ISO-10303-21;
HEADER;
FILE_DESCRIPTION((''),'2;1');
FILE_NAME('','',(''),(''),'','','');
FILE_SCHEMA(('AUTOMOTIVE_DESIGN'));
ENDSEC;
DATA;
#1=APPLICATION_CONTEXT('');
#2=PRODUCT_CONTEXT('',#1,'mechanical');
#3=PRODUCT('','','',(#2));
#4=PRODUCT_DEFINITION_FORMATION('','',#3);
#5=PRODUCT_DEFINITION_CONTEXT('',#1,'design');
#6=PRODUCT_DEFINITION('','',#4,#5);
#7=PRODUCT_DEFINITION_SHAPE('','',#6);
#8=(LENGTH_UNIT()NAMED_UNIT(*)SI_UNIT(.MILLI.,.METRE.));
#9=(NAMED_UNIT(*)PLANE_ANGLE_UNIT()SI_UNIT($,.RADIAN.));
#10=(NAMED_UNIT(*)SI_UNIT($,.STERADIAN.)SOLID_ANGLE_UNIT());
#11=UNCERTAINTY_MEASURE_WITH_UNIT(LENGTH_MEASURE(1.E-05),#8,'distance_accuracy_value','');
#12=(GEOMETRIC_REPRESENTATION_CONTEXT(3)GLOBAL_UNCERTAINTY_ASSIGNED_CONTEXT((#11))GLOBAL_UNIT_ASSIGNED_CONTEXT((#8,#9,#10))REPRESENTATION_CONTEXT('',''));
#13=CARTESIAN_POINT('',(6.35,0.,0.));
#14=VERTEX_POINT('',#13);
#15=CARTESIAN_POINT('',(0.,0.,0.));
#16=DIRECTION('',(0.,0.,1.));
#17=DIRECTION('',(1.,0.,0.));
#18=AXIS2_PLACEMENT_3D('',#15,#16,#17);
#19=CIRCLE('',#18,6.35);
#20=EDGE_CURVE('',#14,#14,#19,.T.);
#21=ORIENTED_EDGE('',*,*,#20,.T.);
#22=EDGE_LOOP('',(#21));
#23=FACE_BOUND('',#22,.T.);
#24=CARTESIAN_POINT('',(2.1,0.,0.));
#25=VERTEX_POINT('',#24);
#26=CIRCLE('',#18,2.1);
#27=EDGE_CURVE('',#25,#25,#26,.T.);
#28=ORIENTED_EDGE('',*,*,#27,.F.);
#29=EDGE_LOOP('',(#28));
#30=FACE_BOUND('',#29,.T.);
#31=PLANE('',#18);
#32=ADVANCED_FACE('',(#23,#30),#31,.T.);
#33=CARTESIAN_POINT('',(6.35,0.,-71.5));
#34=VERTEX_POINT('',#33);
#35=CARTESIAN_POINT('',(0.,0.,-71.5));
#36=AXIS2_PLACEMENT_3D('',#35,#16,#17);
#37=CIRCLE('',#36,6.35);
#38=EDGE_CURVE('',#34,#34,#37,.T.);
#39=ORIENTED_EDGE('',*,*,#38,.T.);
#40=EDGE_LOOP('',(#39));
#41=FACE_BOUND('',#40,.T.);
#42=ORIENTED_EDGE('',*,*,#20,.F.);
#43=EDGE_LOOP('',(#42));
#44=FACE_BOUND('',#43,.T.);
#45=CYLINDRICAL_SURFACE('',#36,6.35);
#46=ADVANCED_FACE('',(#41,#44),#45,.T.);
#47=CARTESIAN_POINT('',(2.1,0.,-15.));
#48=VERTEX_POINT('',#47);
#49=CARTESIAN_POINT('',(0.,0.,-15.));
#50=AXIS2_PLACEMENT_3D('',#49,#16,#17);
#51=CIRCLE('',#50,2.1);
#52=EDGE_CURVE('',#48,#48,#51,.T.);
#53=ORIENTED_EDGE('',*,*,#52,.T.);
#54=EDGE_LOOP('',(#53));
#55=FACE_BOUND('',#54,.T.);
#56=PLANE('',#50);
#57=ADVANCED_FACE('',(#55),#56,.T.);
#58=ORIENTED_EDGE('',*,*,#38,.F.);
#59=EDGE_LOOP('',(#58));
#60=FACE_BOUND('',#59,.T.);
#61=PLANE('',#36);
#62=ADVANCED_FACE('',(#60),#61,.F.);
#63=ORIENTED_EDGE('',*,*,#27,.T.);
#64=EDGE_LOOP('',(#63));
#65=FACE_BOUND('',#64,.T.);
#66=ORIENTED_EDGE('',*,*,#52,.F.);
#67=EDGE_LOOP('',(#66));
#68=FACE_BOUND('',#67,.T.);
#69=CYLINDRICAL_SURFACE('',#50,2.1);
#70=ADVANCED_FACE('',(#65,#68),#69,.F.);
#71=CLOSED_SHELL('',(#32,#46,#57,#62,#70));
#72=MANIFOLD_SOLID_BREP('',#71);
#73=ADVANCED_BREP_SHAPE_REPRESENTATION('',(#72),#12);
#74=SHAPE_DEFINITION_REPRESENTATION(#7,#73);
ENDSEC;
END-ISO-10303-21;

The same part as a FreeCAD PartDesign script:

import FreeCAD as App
import Part
import Sketcher

doc = App.newDocument("Part")
body = doc.addObject("PartDesign::Body", "Body")

# Sketch on XY plane
sketch1 = doc.addObject("Sketcher::SketchObject", "Sketch")
body.addObject(sketch1)
sketch1.AttachmentSupport = (doc.XY_Plane, [""])
sketch1.MapMode = "FlatFace"
sketch1.addGeometry(Part.Circle(App.Vector(0, 0, 0), App.Vector(0, 0, 1), 6.35), False)
sketch1.addConstraint([
    Sketcher.Constraint("Coincident", 0, 3, -1, 1),
    Sketcher.Constraint("Diameter", 0, 12.7),
])
pad1 = doc.addObject("PartDesign::Pad", "Pad")
body.addObject(pad1)
pad1.Profile = sketch1
pad1.Length = 71.5
pad1.Reversed = True

# Sketch on XY plane
sketch2 = doc.addObject("Sketcher::SketchObject", "Sketch001")
body.addObject(sketch2)
sketch2.AttachmentSupport = (doc.XY_Plane, [""])
sketch2.MapMode = "FlatFace"
sketch2.addGeometry(Part.Circle(App.Vector(0, 0, 0), App.Vector(0, 0, 1), 2.1), False)
sketch2.addConstraint([
    Sketcher.Constraint("Coincident", 0, 3, -1, 1),
    Sketcher.Constraint("Diameter", 0, 4.2),
])
pocket1 = doc.addObject("PartDesign::Pocket", "Pocket")
body.addObject(pocket1)
pocket1.Profile = sketch2
pocket1.Length = 15

doc.recompute()
